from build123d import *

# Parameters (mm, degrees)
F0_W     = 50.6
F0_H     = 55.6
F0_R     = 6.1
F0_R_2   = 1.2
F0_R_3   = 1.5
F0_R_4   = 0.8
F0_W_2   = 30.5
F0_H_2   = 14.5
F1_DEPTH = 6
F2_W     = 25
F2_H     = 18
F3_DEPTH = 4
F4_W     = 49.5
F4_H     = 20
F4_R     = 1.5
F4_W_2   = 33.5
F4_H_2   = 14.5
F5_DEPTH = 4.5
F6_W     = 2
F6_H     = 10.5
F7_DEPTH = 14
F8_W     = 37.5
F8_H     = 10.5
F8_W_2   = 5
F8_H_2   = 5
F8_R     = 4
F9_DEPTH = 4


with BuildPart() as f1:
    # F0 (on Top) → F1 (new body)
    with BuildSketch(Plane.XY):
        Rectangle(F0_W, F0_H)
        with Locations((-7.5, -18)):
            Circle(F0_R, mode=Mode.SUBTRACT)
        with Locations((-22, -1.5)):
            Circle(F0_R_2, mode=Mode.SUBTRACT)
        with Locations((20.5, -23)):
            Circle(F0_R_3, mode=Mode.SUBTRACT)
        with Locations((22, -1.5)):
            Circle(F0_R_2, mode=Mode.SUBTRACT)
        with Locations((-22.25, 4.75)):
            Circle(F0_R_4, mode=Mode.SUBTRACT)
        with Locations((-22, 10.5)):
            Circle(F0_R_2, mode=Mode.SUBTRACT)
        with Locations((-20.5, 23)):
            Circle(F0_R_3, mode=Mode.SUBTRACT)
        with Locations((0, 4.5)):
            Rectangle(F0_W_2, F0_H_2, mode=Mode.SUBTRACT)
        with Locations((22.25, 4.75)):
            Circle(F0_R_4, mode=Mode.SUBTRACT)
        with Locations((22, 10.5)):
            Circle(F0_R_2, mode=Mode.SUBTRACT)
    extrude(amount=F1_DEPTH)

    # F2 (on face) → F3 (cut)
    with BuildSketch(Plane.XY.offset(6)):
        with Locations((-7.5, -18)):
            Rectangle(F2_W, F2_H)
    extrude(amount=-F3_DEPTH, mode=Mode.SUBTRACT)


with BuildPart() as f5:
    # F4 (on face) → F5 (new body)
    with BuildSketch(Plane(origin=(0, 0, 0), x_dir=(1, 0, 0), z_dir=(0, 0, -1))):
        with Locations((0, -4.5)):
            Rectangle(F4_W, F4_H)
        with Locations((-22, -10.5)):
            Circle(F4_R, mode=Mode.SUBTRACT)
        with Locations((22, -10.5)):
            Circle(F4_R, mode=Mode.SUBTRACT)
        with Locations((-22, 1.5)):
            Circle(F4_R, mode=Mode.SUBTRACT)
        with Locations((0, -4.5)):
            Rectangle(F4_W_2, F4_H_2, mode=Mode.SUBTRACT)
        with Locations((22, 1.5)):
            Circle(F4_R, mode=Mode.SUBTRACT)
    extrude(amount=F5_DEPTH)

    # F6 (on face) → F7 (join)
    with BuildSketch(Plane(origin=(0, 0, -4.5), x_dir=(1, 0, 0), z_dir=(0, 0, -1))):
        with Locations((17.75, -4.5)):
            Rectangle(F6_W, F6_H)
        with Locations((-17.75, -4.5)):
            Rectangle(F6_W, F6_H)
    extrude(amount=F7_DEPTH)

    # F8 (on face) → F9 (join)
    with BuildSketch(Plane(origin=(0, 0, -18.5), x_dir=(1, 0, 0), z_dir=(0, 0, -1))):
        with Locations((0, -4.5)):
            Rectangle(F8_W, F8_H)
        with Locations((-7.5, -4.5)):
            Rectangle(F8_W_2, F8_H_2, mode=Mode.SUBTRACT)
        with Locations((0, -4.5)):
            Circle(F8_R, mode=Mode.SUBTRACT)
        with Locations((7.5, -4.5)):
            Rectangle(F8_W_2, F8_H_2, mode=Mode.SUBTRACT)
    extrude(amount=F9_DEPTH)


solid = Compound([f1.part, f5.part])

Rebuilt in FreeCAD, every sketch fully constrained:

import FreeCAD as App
import Part
import Sketcher

doc = App.newDocument("Part")
params = doc.addObject("Spreadsheet::Sheet", "Params")
for row, (alias, value) in enumerate([
    ("sketch1_diameter", "3 mm"),
    ("sketch1_diameter2", "12.2 mm"),
    ("sketch1_diameter3", "2.4 mm"),
    ("sketch1_diameter4", "1.6 mm"),
    ("sketch1_width", "50.6 mm"),
    ("pad1_length", "6 mm"),
    ("sketch2_width", "25 mm"),
    ("sketch2_height", "18 mm"),
    ("pocket1_length", "4 mm"),
    ("sketch3_diameter", "3 mm"),
    ("sketch3_height", "20 mm"),
    ("sketch3_width", "49.5 mm"),
    ("sketch3_width2", "33.5 mm"),
    ("sketch3_height2", "14.5 mm"),
    ("pad2_length", "4.5 mm"),
    ("sketch4_width", "2 mm"),
    ("sketch4_height", "10.5 mm"),
    ("pad3_length", "14 mm"),
    ("sketch5_diameter", "8 mm"),
    ("sketch5_width", "5 mm"),
    ("sketch5_width2", "37.5 mm"),
    ("sketch5_height", "10.5 mm"),
    ("pad4_length", "4 mm"),
], start=1):
    params.set(f"A{row}", alias)
    params.set(f"B{row}", "=" + value)
    params.setAlias(f"B{row}", alias)

body = doc.addObject("PartDesign::Body", "Body")

# Sketch on XY plane
sketch1 = body.newObject("Sketcher::SketchObject", "Sketch")
sketch1.AttachmentSupport = (doc.getObject("XY_Plane"), [""])
sketch1.MapMode = "FlatFace"
sketch1.addGeometry(Part.LineSegment(App.Vector(-25.3, 27.8, 0), App.Vector(-25.3, -27.8, 0)), False)
sketch1.addGeometry(Part.LineSegment(App.Vector(-25.3, -27.8, 0), App.Vector(25.3, -27.8, 0)), False)
sketch1.addGeometry(Part.LineSegment(App.Vector(25.3, -27.8, 0), App.Vector(25.3, 27.8, 0)), False)
sketch1.addGeometry(Part.LineSegment(App.Vector(25.3, 27.8, 0), App.Vector(-25.3, 27.8, 0)), False)
sketch1.addGeometry(Part.Circle(App.Vector(-7.5, -18, 0), App.Vector(0, 0, 1), 6.1), False)
sketch1.addGeometry(Part.Circle(App.Vector(-22, -1.5, 0), App.Vector(0, 0, 1), 1.2), False)
sketch1.addGeometry(Part.Circle(App.Vector(20.5, -23, 0), App.Vector(0, 0, 1), 1.5), False)
sketch1.addGeometry(Part.Circle(App.Vector(22, -1.5, 0), App.Vector(0, 0, 1), 1.2), False)
sketch1.addGeometry(Part.Circle(App.Vector(-22.2, 4.8, 0), App.Vector(0, 0, 1), 0.8), False)
sketch1.addGeometry(Part.Circle(App.Vector(-22, 10.5, 0), App.Vector(0, 0, 1), 1.2), False)
sketch1.addGeometry(Part.Circle(App.Vector(-20.5, 23, 0), App.Vector(0, 0, 1), 1.5), False)
sketch1.addGeometry(Part.LineSegment(App.Vector(15.2, -2.8, 0), App.Vector(-15.2, -2.8, 0)), False)
sketch1.addGeometry(Part.LineSegment(App.Vector(-15.2, -2.8, 0), App.Vector(-15.2, 11.8, 0)), False)
sketch1.addGeometry(Part.LineSegment(App.Vector(-15.2, 11.8, 0), App.Vector(15.2, 11.8, 0)), False)
sketch1.addGeometry(Part.LineSegment(App.Vector(15.2, 11.8, 0), App.Vector(15.2, -2.8, 0)), False)
sketch1.addGeometry(Part.Circle(App.Vector(22.2, 4.8, 0), App.Vector(0, 0, 1), 0.8), False)
sketch1.addGeometry(Part.Circle(App.Vector(22, 10.5, 0), App.Vector(0, 0, 1), 1.2), False)
sketch1.addConstraint(Sketcher.Constraint("Coincident", 0, 2, 1, 1))
sketch1.addConstraint(Sketcher.Constraint("Coincident", 1, 2, 2, 1))
sketch1.addConstraint(Sketcher.Constraint("Coincident", 2, 2, 3, 1))
sketch1.addConstraint(Sketcher.Constraint("Coincident", 3, 2, 0, 1))
sketch1.addConstraint(Sketcher.Constraint("Coincident", 11, 2, 12, 1))
sketch1.addConstraint(Sketcher.Constraint("Coincident", 12, 2, 13, 1))
sketch1.addConstraint(Sketcher.Constraint("Coincident", 13, 2, 14, 1))
sketch1.addConstraint(Sketcher.Constraint("Coincident", 14, 2, 11, 1))
sketch1.addConstraint(Sketcher.Constraint("Vertical", 0))
sketch1.addConstraint(Sketcher.Constraint("Horizontal", 1))
sketch1.addConstraint(Sketcher.Constraint("Vertical", 2))
sketch1.addConstraint(Sketcher.Constraint("Horizontal", 3))
sketch1.addConstraint(Sketcher.Constraint("Horizontal", 11))
sketch1.addConstraint(Sketcher.Constraint("Vertical", 12))
sketch1.addConstraint(Sketcher.Constraint("Horizontal", 13))
sketch1.addConstraint(Sketcher.Constraint("Vertical", 14))
sketch1.addConstraint(Sketcher.Constraint("Equal", 5, 7))
sketch1.addConstraint(Sketcher.Constraint("Equal", 7, 9))
sketch1.addConstraint(Sketcher.Constraint("Equal", 6, 10))
sketch1.addConstraint(Sketcher.Constraint("Equal", 8, 15))
sketch1.addConstraint(Sketcher.Constraint("Equal", 9, 16))
sketch1.addConstraint(Sketcher.Constraint("Symmetric", 6, 3, 10, 3, -1, 1))
sketch1.addConstraint(Sketcher.Constraint("Symmetric", 0, 2, 2, 2, -1, 1))
sketch1.addConstraint(Sketcher.Constraint("Symmetric", 5, 3, 7, 3, -2))
sketch1.addConstraint(Sketcher.Constraint("Symmetric", 8, 3, 15, 3, -2))
sketch1.addConstraint(Sketcher.Constraint("Symmetric", 9, 3, 16, 3, -2))
sketch1.addConstraint(Sketcher.Constraint("Vertical", 5, 3, 9, 3))
sketch1.addConstraint(Sketcher.Constraint("Diameter", 6, 3.0))
sketch1.addConstraint(Sketcher.Constraint("Diameter", 4, 12.2))
sketch1.addConstraint(Sketcher.Constraint("Diameter", 5, 2.4))
sketch1.addConstraint(Sketcher.Constraint("Diameter", 8, 1.6))
sketch1.addConstraint(Sketcher.Constraint("DistanceX", 1, 1, 1, 2, 50.6))
sketch1.addConstraint(Sketcher.Constraint("DistanceX", 11, 2, 11, 1, 30.5))
sketch1.addConstraint(Sketcher.Constraint("DistanceY", 0, 2, 0, 1, 55.6))
sketch1.addConstraint(Sketcher.Constraint("DistanceY", 12, 1, 12, 2, 14.5))
sketch1.addConstraint(Sketcher.Constraint("DistanceY", 4, 3, -1, 1, 18.0))
sketch1.addConstraint(Sketcher.Constraint("DistanceX", 5, 3, -1, 1, 22.0))
sketch1.addConstraint(Sketcher.Constraint("DistanceY", 6, 3, -1, 1, 23.0))
sketch1.addConstraint(Sketcher.Constraint("DistanceX", 4, 3, 6, 3, 28.0))
sketch1.addConstraint(Sketcher.Constraint("DistanceY", 5, 3, 9, 3, 12.0))
sketch1.addConstraint(Sketcher.Constraint("DistanceX", 10, 3, 4, 3, 13.0))
sketch1.addConstraint(Sketcher.Constraint("DistanceX", 8, 3, 11, 2, 7.0))
sketch1.addConstraint(Sketcher.Constraint("DistanceY", 8, 3, 12, 2, 7.0))
sketch1.addConstraint(Sketcher.Constraint("DistanceX", 13, 2, 15, 3, 7.0))
sketch1.addConstraint(Sketcher.Constraint("DistanceY", 5, 3, -1, 1, 1.5))
sketch1.addConstraint(Sketcher.Constraint("DistanceY", -1, 1, 8, 3, 4.75))
sketch1.setExpression("Constraints[27]", "Params.sketch1_diameter")
sketch1.setExpression("Constraints[28]", "Params.sketch1_diameter2")
sketch1.setExpression("Constraints[29]", "Params.sketch1_diameter3")
sketch1.setExpression("Constraints[30]", "Params.sketch1_diameter4")
sketch1.setExpression("Constraints[31]", "Params.sketch1_width")
pad1 = body.newObject("PartDesign::Pad", "Pad")
pad1.Profile = sketch1
pad1.setExpression("Length", "Params.pad1_length")

# Sketch on XY plane
sketch2 = body.newObject("Sketcher::SketchObject", "Sketch001")
sketch2.AttachmentSupport = (doc.getObject("XY_Plane"), [""])
sketch2.MapMode = "FlatFace"
sketch2.AttachmentOffset = App.Placement(App.Vector(0, 0, 6), App.Rotation())
sketch2.addGeometry(Part.LineSegment(App.Vector(-20, -9, 0), App.Vector(-20, -27, 0)), False)
sketch2.addGeometry(Part.LineSegment(App.Vector(-20, -27, 0), App.Vector(5, -27, 0)), False)
sketch2.addGeometry(Part.LineSegment(App.Vector(5, -27, 0), App.Vector(5, -9, 0)), False)
sketch2.addGeometry(Part.LineSegment(App.Vector(5, -9, 0), App.Vector(-20, -9, 0)), False)
sketch2.addConstraint(Sketcher.Constraint("Coincident", 0, 2, 1, 1))
sketch2.addConstraint(Sketcher.Constraint("Coincident", 1, 2, 2, 1))
sketch2.addConstraint(Sketcher.Constraint("Coincident", 2, 2, 3, 1))
sketch2.addConstraint(Sketcher.Constraint("Coincident", 3, 2, 0, 1))
sketch2.addConstraint(Sketcher.Constraint("Vertical", 0))
sketch2.addConstraint(Sketcher.Constraint("Horizontal", 1))
sketch2.addConstraint(Sketcher.Constraint("Vertical", 2))
sketch2.addConstraint(Sketcher.Constraint("Horizontal", 3))
sketch2.addConstraint(Sketcher.Constraint("DistanceX", 1, 1, 1, 2, 25.0))
sketch2.addConstraint(Sketcher.Constraint("DistanceY", 0, 2, 0, 1, 18.0))
sketch2.addConstraint(Sketcher.Constraint("DistanceX", 0, 2, -1, 1, 20.0))
sketch2.addConstraint(Sketcher.Constraint("DistanceY", 0, 2, -1, 1, 27.0))
sketch2.setExpression("Constraints[8]", "Params.sketch2_width")
sketch2.setExpression("Constraints[9]", "Params.sketch2_height")
pocket1 = body.newObject("PartDesign::Pocket", "Pocket")
pocket1.Profile = sketch2
pocket1.setExpression("Length", "Params.pocket1_length")
body2 = doc.addObject("PartDesign::Body", "Body001")

# Sketch on XY plane
sketch3 = body2.newObject("Sketcher::SketchObject", "Sketch002")
sketch3.AttachmentSupport = (doc.getObject("XY_Plane001"), [""])
sketch3.MapMode = "FlatFace"
sketch3.addGeometry(Part.LineSegment(App.Vector(-24.8, -5.5, 0), App.Vector(-24.8, 14.5, 0)), False)
sketch3.addGeometry(Part.LineSegment(App.Vector(-24.8, 14.5, 0), App.Vector(24.8, 14.5, 0)), False)
sketch3.addGeometry(Part.LineSegment(App.Vector(24.8, 14.5, 0), App.Vector(24.8, -5.5, 0)), False)
sketch3.addGeometry(Part.LineSegment(App.Vector(24.8, -5.5, 0), App.Vector(-24.8, -5.5, 0)), False)
sketch3.addGeometry(Part.Circle(App.Vector(-22, 10.5, 0), App.Vector(0, 0, 1), 1.5), False)
sketch3.addGeometry(Part.Circle(App.Vector(22, 10.5, 0), App.Vector(0, 0, 1), 1.5), False)
sketch3.addGeometry(Part.Circle(App.Vector(-22, -1.5, 0), App.Vector(0, 0, 1), 1.5), False)
sketch3.addGeometry(Part.LineSegment(App.Vector(16.8, 11.8, 0), App.Vector(-16.8, 11.8, 0)), False)
sketch3.addGeometry(Part.LineSegment(App.Vector(-16.8, 11.8, 0), App.Vector(-16.8, -2.8, 0)), False)
sketch3.addGeometry(Part.LineSegment(App.Vector(-16.8, -2.8, 0), App.Vector(16.8, -2.8, 0)), False)
sketch3.addGeometry(Part.LineSegment(App.Vector(16.8, -2.8, 0), App.Vector(16.8, 11.8, 0)), False)
sketch3.addGeometry(Part.Circle(App.Vector(22, -1.5, 0), App.Vector(0, 0, 1), 1.5), False)
sketch3.addConstraint(Sketcher.Constraint("Coincident", 0, 2, 1, 1))
sketch3.addConstraint(Sketcher.Constraint("Coincident", 1, 2, 2, 1))
sketch3.addConstraint(Sketcher.Constraint("Coincident", 2, 2, 3, 1))
sketch3.addConstraint(Sketcher.Constraint("Coincident", 3, 2, 0, 1))
sketch3.addConstraint(Sketcher.Constraint("Coincident", 7, 2, 8, 1))
sketch3.addConstraint(Sketcher.Constraint("Coincident", 8, 2, 9, 1))
sketch3.addConstraint(Sketcher.Constraint("Coincident", 9, 2, 10, 1))
sketch3.addConstraint(Sketcher.Constraint("Coincident", 10, 2, 7, 1))
sketch3.addConstraint(Sketcher.Constraint("Vertical", 0))
sketch3.addConstraint(Sketcher.Constraint("Horizontal", 1))
sketch3.addConstraint(Sketcher.Constraint("Vertical", 2))
sketch3.addConstraint(Sketcher.Constraint("Horizontal", 3))
sketch3.addConstraint(Sketcher.Constraint("Horizontal", 7))
sketch3.addConstraint(Sketcher.Constraint("Vertical", 8))
sketch3.addConstraint(Sketcher.Constraint("Horizontal", 9))
sketch3.addConstraint(Sketcher.Constraint("Vertical", 10))
sketch3.addConstraint(Sketcher.Constraint("Equal", 4, 5))
sketch3.addConstraint(Sketcher.Constraint("Equal", 5, 6))
sketch3.addConstraint(Sketcher.Constraint("Equal", 6, 11))
sketch3.addConstraint(Sketcher.Constraint("Symmetric", 4, 3, 5, 3, -2))
sketch3.addConstraint(Sketcher.Constraint("Symmetric", 6, 3, 11, 3, -2))
sketch3.addConstraint(Sketcher.Constraint("Vertical", 4, 3, 6, 3))
sketch3.addConstraint(Sketcher.Constraint("Diameter", 4, 3.0))
sketch3.addConstraint(Sketcher.Constraint("DistanceY", 0, 1, 0, 2, 20.0))
sketch3.addConstraint(Sketcher.Constraint("DistanceX", 1, 1, 1, 2, 49.5))
sketch3.addConstraint(Sketcher.Constraint("DistanceX", 7, 2, 7, 1, 33.5))
sketch3.addConstraint(Sketcher.Constraint("DistanceY", 8, 2, 8, 1, 14.5))
sketch3.addConstraint(Sketcher.Constraint("DistanceX", 4, 3, -1, 1, 22.0))
sketch3.addConstraint(Sketcher.Constraint("DistanceY", 6, 3, 4, 3, 12.0))
sketch3.addConstraint(Sketcher.Constraint("DistanceY", 4, 3, 0, 2, 4.0))
sketch3.addConstraint(Sketcher.Constraint("DistanceX", 0, 2, 7, 2, 8.0))
sketch3.addConstraint(Sketcher.Constraint("DistanceY", -1, 1, 4, 3, 10.5))
sketch3.addConstraint(Sketcher.Constraint("DistanceX", 0, 2, -1, 1, 24.75))
sketch3.addConstraint(Sketcher.Constraint("DistanceY", -1, 1, 7, 2, 11.75))
sketch3.setExpression("Constraints[22]", "Params.sketch3_diameter")
sketch3.setExpression("Constraints[23]", "Params.sketch3_height")
sketch3.setExpression("Constraints[24]", "Params.sketch3_width")
sketch3.setExpression("Constraints[25]", "Params.sketch3_width2")
sketch3.setExpression("Constraints[26]", "Params.sketch3_height2")
pad2 = body2.newObject("PartDesign::Pad", "Pad001")
pad2.Profile = sketch3
pad2.setExpression("Length", "Params.pad2_length")
pad2.Reversed = True

# Sketch on XY plane
sketch4 = body2.newObject("Sketcher::SketchObject", "Sketch003")
sketch4.AttachmentSupport = (doc.getObject("XY_Plane001"), [""])
sketch4.MapMode = "FlatFace"
sketch4.AttachmentOffset = App.Placement(App.Vector(0, 0, -4.5), App.Rotation())
sketch4.addGeometry(Part.LineSegment(App.Vector(16.8, -0.8, 0), App.Vector(16.8, 9.8, 0)), False)
sketch4.addGeometry(Part.LineSegment(App.Vector(16.8, 9.8, 0), App.Vector(18.8, 9.8, 0)), False)
sketch4.addGeometry(Part.LineSegment(App.Vector(18.8, 9.8, 0), App.Vector(18.8, -0.8, 0)), False)
sketch4.addGeometry(Part.LineSegment(App.Vector(18.8, -0.8, 0), App.Vector(16.8, -0.8, 0)), False)
sketch4.addGeometry(Part.LineSegment(App.Vector(-18.8, -0.8, 0), App.Vector(-18.8, 9.8, 0)), False)
sketch4.addGeometry(Part.LineSegment(App.Vector(-18.8, 9.8, 0), App.Vector(-16.8, 9.8, 0)), False)
sketch4.addGeometry(Part.LineSegment(App.Vector(-16.8, 9.8, 0), App.Vector(-16.8, -0.8, 0)), False)
sketch4.addGeometry(Part.LineSegment(App.Vector(-16.8, -0.8, 0), App.Vector(-18.8, -0.8, 0)), False)
sketch4.addConstraint(Sketcher.Constraint("Coincident", 0, 2, 1, 1))
sketch4.addConstraint(Sketcher.Constraint("Coincident", 1, 2, 2, 1))
sketch4.addConstraint(Sketcher.Constraint("Coincident", 2, 2, 3, 1))
sketch4.addConstraint(Sketcher.Constraint("Coincident", 3, 2, 0, 1))
sketch4.addConstraint(Sketcher.Constraint("Coincident", 4, 2, 5, 1))
sketch4.addConstraint(Sketcher.Constraint("Coincident", 5, 2, 6, 1))
sketch4.addConstraint(Sketcher.Constraint("Coincident", 6, 2, 7, 1))
sketch4.addConstraint(Sketcher.Constraint("Coincident", 7, 2, 4, 1))
sketch4.addConstraint(Sketcher.Constraint("Vertical", 0))
sketch4.addConstraint(Sketcher.Constraint("Horizontal", 1))
sketch4.addConstraint(Sketcher.Constraint("Vertical", 2))
sketch4.addConstraint(Sketcher.Constraint("Horizontal", 3))
sketch4.addConstraint(Sketcher.Constraint("Vertical", 4))
sketch4.addConstraint(Sketcher.Constraint("Horizontal", 5))
sketch4.addConstraint(Sketcher.Constraint("Vertical", 6))
sketch4.addConstraint(Sketcher.Constraint("Horizontal", 7))
sketch4.addConstraint(Sketcher.Constraint("Symmetric", 1, 2, 4, 2, -2))
sketch4.addConstraint(Sketcher.Constraint("Symmetric", 3, 2, 6, 2, -2))
sketch4.addConstraint(Sketcher.Constraint("DistanceX", 1, 1, 1, 2, 2.0))
sketch4.addConstraint(Sketcher.Constraint("DistanceY", 0, 1, 0, 2, 10.5))
sketch4.addConstraint(Sketcher.Constraint("DistanceX", 4, 2, 0, 2, 35.5))
sketch4.addConstraint(Sketcher.Constraint("DistanceY", -1, 1, 0, 2, 9.75))
sketch4.setExpression("Constraints[18]", "Params.sketch4_width")
sketch4.setExpression("Constraints[19]", "Params.sketch4_height")
pad3 = body2.newObject("PartDesign::Pad", "Pad002")
pad3.Profile = sketch4
pad3.setExpression("Length", "Params.pad3_length")
pad3.Reversed = True

# Sketch on XY plane
sketch5 = body2.newObject("Sketcher::SketchObject", "Sketch004")
sketch5.AttachmentSupport = (doc.getObject("XY_Plane001"), [""])
sketch5.MapMode = "FlatFace"
sketch5.AttachmentOffset = App.Placement(App.Vector(0, 0, -18.5), App.Rotation())
sketch5.addGeometry(Part.LineSegment(App.Vector(-18.8, -0.8, 0), App.Vector(-18.8, 9.8, 0)), False)
sketch5.addGeometry(Part.LineSegment(App.Vector(-18.8, 9.8, 0), App.Vector(18.8, 9.8, 0)), False)
sketch5.addGeometry(Part.LineSegment(App.Vector(18.8, 9.8, 0), App.Vector(18.8, -0.8, 0)), False)
sketch5.addGeometry(Part.LineSegment(App.Vector(18.8, -0.8, 0), App.Vector(-18.8, -0.8, 0)), False)
sketch5.addGeometry(Part.LineSegment(App.Vector(-5, 7, 0), App.Vector(-10, 7, 0)), False)
sketch5.addGeometry(Part.LineSegment(App.Vector(-10, 7, 0), App.Vector(-10, 2, 0)), False)
sketch5.addGeometry(Part.LineSegment(App.Vector(-10, 2, 0), App.Vector(-5, 2, 0)), False)
sketch5.addGeometry(Part.LineSegment(App.Vector(-5, 2, 0), App.Vector(-5, 7, 0)), False)
sketch5.addGeometry(Part.Circle(App.Vector(0, 4.5, 0), App.Vector(0, 0, 1), 4), False)
sketch5.addGeometry(Part.LineSegment(App.Vector(10, 7, 0), App.Vector(5, 7, 0)), False)
sketch5.addGeometry(Part.LineSegment(App.Vector(5, 7, 0), App.Vector(5, 2, 0)), False)
sketch5.addGeometry(Part.LineSegment(App.Vector(5, 2, 0), App.Vector(10, 2, 0)), False)
sketch5.addGeometry(Part.LineSegment(App.Vector(10, 2, 0), App.Vector(10, 7, 0)), False)
sketch5.addConstraint(Sketcher.Constraint("Coincident", 0, 2, 1, 1))
sketch5.addConstraint(Sketcher.Constraint("Coincident", 1, 2, 2, 1))
sketch5.addConstraint(Sketcher.Constraint("Coincident", 2, 2, 3, 1))
sketch5.addConstraint(Sketcher.Constraint("Coincident", 3, 2, 0, 1))
sketch5.addConstraint(Sketcher.Constraint("Coincident", 4, 2, 5, 1))
sketch5.addConstraint(Sketcher.Constraint("Coincident", 5, 2, 6, 1))
sketch5.addConstraint(Sketcher.Constraint("Coincident", 6, 2, 7, 1))
sketch5.addConstraint(Sketcher.Constraint("Coincident", 7, 2, 4, 1))
sketch5.addConstraint(Sketcher.Constraint("Coincident", 9, 2, 10, 1))
sketch5.addConstraint(Sketcher.Constraint("Coincident", 10, 2, 11, 1))
sketch5.addConstraint(Sketcher.Constraint("Coincident", 11, 2, 12, 1))
sketch5.addConstraint(Sketcher.Constraint("Coincident", 12, 2, 9, 1))
sketch5.addConstraint(Sketcher.Constraint("Vertical", 0))
sketch5.addConstraint(Sketcher.Constraint("Horizontal", 1))
sketch5.addConstraint(Sketcher.Constraint("Vertical", 2))
sketch5.addConstraint(Sketcher.Constraint("Horizontal", 3))
sketch5.addConstraint(Sketcher.Constraint("Horizontal", 4))
sketch5.addConstraint(Sketcher.Constraint("Vertical", 5))
sketch5.addConstraint(Sketcher.Constraint("Horizontal", 6))
sketch5.addConstraint(Sketcher.Constraint("Vertical", 7))
sketch5.addConstraint(Sketcher.Constraint("Horizontal", 9))
sketch5.addConstraint(Sketcher.Constraint("Vertical", 10))
sketch5.addConstraint(Sketcher.Constraint("Horizontal", 11))
sketch5.addConstraint(Sketcher.Constraint("Vertical", 12))
sketch5.addConstraint(Sketcher.Constraint("Symmetric", 7, 2, 9, 2, -2))
sketch5.addConstraint(Sketcher.Constraint("Symmetric", 5, 2, 11, 2, -2))
sketch5.addConstraint(Sketcher.Constraint("PointOnObject", 8, 3, -2))
sketch5.addConstraint(Sketcher.Constraint("Equal", 11, 5))
sketch5.addConstraint(Sketcher.Constraint("Diameter", 8, 8.0))
sketch5.addConstraint(Sketcher.Constraint("DistanceX", 4, 2, 4, 1, 5.0))
sketch5.addConstraint(Sketcher.Constraint("DistanceX", 1, 1, 1, 2, 37.5))
sketch5.addConstraint(Sketcher.Constraint("DistanceY", 0, 1, 0, 2, 10.5))
sketch5.addConstraint(Sketcher.Constraint("DistanceX", 4, 2, -1, 1, 10.0))
sketch5.addConstraint(Sketcher.Constraint("DistanceY", -1, 1, 4, 2, 7.0))
sketch5.addConstraint(Sketcher.Constraint("DistanceY", -1, 1, 8, 3, 4.5))
sketch5.addConstraint(Sketcher.Constraint("DistanceX", 0, 2, -1, 1, 18.75))
sketch5.addConstraint(Sketcher.Constraint("DistanceY", -1, 1, 0, 2, 9.75))
sketch5.setExpression("Constraints[28]", "Params.sketch5_diameter")
sketch5.setExpression("Constraints[29]", "Params.sketch5_width")
sketch5.setExpression("Constraints[30]", "Params.sketch5_width2")
sketch5.setExpression("Constraints[31]", "Params.sketch5_height")
pad4 = body2.newObject("PartDesign::Pad", "Pad003")
pad4.Profile = sketch5
pad4.setExpression("Length", "Params.pad4_length")
pad4.Reversed = True

doc.recompute()
